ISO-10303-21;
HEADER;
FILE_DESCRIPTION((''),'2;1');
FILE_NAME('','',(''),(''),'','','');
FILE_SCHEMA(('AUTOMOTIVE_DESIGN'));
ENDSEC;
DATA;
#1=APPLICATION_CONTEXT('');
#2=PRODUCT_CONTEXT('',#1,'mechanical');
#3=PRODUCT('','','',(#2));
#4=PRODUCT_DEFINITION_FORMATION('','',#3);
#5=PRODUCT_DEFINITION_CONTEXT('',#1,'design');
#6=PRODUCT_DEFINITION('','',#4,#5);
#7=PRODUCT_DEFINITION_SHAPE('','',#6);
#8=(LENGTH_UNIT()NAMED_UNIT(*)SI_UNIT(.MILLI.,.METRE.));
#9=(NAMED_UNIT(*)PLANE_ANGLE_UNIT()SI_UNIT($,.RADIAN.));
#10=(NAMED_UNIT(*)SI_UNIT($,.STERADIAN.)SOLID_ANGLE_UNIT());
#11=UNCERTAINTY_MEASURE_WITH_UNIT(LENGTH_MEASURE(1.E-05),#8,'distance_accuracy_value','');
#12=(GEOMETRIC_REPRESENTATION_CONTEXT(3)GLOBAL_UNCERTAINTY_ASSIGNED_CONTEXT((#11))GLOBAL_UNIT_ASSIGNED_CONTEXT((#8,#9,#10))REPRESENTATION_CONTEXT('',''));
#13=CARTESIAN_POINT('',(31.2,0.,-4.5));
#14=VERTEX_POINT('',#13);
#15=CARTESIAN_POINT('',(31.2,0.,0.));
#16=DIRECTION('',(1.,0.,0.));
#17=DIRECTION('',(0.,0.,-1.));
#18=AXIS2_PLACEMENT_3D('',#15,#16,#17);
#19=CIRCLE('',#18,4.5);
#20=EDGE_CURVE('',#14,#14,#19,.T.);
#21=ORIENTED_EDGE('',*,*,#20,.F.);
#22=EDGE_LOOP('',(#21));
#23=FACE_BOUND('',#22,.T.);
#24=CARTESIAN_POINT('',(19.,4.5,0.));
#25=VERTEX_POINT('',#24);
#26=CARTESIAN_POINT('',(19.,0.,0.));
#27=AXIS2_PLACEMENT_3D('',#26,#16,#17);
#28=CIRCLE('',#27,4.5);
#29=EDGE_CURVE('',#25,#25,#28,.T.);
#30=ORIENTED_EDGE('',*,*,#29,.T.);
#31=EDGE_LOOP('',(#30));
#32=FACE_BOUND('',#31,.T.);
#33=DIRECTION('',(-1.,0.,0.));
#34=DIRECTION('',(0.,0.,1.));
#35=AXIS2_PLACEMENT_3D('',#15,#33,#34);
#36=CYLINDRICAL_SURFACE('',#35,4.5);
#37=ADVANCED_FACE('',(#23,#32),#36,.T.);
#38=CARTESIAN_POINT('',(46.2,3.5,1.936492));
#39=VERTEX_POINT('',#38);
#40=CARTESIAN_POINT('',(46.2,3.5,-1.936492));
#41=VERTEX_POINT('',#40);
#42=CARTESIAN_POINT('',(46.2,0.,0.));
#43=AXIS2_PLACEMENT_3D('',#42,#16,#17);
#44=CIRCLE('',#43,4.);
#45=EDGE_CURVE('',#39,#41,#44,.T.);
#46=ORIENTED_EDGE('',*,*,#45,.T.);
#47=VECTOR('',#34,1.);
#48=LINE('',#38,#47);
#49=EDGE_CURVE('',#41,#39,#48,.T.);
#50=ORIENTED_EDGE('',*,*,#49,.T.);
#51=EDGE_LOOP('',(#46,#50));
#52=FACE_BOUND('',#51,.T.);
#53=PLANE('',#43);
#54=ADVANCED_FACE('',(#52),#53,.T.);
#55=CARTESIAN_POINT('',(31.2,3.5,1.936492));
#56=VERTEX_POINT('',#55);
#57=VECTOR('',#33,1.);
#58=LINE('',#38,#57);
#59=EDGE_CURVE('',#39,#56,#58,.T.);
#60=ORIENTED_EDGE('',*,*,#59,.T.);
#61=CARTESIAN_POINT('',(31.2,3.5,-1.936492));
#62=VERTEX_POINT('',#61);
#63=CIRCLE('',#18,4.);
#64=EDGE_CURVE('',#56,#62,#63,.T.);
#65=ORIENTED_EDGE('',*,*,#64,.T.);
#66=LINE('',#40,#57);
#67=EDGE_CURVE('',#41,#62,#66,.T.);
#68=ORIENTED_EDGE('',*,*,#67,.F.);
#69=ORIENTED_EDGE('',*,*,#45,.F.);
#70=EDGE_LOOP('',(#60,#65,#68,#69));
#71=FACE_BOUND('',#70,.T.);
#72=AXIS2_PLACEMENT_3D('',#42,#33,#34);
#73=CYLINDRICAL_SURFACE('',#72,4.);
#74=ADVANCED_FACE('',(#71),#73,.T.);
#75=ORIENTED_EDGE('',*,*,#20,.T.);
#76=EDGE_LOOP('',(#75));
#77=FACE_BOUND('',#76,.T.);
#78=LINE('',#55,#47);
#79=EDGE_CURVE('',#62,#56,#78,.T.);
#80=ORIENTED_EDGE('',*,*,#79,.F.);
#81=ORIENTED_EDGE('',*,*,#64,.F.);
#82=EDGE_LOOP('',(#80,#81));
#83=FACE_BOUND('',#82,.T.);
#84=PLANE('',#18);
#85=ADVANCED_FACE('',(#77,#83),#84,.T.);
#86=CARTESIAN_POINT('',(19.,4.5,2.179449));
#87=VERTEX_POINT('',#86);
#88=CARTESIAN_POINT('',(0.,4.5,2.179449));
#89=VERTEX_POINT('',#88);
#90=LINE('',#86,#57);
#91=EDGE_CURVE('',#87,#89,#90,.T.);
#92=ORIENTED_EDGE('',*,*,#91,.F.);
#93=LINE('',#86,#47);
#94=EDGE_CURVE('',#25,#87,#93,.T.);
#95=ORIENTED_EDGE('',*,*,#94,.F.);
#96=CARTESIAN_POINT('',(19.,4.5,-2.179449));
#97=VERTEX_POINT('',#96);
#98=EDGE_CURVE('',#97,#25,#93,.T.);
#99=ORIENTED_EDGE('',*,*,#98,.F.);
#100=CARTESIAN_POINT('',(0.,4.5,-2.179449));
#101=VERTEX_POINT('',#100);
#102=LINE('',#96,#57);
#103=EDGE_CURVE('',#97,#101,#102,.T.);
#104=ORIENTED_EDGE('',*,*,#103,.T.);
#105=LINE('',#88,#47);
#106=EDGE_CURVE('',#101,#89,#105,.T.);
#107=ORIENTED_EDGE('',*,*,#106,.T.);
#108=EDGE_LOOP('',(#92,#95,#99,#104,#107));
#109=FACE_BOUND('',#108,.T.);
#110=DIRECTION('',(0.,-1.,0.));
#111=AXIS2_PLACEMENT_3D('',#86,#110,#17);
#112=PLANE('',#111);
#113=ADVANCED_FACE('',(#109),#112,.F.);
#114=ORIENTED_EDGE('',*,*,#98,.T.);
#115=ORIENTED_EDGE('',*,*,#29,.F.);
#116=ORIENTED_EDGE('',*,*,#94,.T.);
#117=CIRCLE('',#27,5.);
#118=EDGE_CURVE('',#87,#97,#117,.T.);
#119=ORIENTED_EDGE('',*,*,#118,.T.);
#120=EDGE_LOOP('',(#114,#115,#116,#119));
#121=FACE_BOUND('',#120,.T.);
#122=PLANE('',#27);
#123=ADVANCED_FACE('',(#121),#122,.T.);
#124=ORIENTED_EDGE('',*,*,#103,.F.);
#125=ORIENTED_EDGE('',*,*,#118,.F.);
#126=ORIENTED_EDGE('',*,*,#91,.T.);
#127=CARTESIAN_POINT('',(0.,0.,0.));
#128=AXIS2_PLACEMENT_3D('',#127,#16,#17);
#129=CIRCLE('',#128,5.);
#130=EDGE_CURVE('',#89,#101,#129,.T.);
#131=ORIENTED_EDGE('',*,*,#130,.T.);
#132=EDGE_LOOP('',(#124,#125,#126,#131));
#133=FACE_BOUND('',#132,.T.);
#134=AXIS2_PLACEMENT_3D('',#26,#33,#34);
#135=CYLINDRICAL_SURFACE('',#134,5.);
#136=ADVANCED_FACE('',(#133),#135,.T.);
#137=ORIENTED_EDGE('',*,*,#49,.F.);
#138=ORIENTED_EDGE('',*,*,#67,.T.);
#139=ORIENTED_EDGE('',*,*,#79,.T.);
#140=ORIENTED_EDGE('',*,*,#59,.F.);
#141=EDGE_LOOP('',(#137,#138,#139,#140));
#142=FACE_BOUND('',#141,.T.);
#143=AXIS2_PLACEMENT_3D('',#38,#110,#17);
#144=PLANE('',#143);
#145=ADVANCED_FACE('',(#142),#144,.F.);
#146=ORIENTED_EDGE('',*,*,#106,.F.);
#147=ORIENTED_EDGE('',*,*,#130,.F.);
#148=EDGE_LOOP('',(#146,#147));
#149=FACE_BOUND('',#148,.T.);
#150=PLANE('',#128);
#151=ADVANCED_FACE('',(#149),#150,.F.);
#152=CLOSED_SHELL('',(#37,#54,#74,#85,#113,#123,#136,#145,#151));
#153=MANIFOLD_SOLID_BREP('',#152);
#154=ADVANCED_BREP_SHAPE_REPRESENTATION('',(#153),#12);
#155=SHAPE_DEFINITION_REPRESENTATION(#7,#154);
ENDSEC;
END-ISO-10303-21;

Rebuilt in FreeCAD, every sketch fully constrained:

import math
import FreeCAD as App
import Part
import Sketcher
from FreeCAD import Vector

doc = App.newDocument("Part")
body = doc.addObject("PartDesign::Body", "Body")

# Sketch on YZ plane
sketch1 = body.newObject("Sketcher::SketchObject", "Sketch")
sketch1.AttachmentSupport = (doc.getObject("YZ_Plane"), [""])
sketch1.MapMode = "FlatFace"
sketch1.addGeometry(Part.LineSegment(Vector(4.5, -2.2, 0), Vector(4.5, 2.2, 0)), False)
sketch1.addGeometry(Part.ArcOfCircle(Part.Circle(Vector(0, 0, 0), Vector(0, 0, 1), 5), math.radians(26), math.radians(334)), False)
sketch1.addConstraint(Sketcher.Constraint("Coincident", 0, 1, 1, 2))
sketch1.addConstraint(Sketcher.Constraint("Coincident", 1, 1, 0, 2))
sketch1.addConstraint(Sketcher.Constraint("Vertical", 0))
sketch1.addConstraint(Sketcher.Constraint("Coincident", 1, 3, -1, 1))
sketch1.addConstraint(Sketcher.Constraint("Radius", 1, 5.0))
sketch1.addConstraint(Sketcher.Constraint("DistanceX", -1, 1, 0, 1, 4.5))
pad1 = body.newObject("PartDesign::Pad", "Pad")
pad1.Profile = sketch1
pad1.Length = 19

# Sketch on YZ plane
sketch2 = body.newObject("Sketcher::SketchObject", "Sketch001")
sketch2.AttachmentSupport = (doc.getObject("YZ_Plane"), [""])
sketch2.MapMode = "FlatFace"
sketch2.AttachmentOffset = App.Placement(Vector(0, 0, 19), App.Rotation())
sketch2.addGeometry(Part.Circle(Vector(0, 0, 0), Vector(0, 0, 1), 4.5), False)
sketch2.addConstraint(Sketcher.Constraint("Coincident", 0, 3, -1, 1))
sketch2.addConstraint(Sketcher.Constraint("Diameter", 0, 9.0))
pad2 = body.newObject("PartDesign::Pad", "Pad001")
pad2.Profile = sketch2
pad2.Length = 12.2

# Sketch on YZ plane
sketch3 = body.newObject("Sketcher::SketchObject", "Sketch002")
sketch3.AttachmentSupport = (doc.getObject("YZ_Plane"), [""])
sketch3.MapMode = "FlatFace"
sketch3.AttachmentOffset = App.Placement(Vector(0, 0, 31.2), App.Rotation())
sketch3.addGeometry(Part.LineSegment(Vector(3.5, -1.9, 0), Vector(3.5, 1.9, 0)), False)
sketch3.addGeometry(Part.ArcOfCircle(Part.Circle(Vector(0, 0, 0), Vector(0, 0, 1), 4), math.radians(29), math.radians(331)), False)
sketch3.addConstraint(Sketcher.Constraint("Coincident", 0, 1, 1, 2))
sketch3.addConstraint(Sketcher.Constraint("Coincident", 1, 1, 0, 2))
sketch3.addConstraint(Sketcher.Constraint("Vertical", 0))
sketch3.addConstraint(Sketcher.Constraint("Coincident", 1, 3, -1, 1))
sketch3.addConstraint(Sketcher.Constraint("Radius", 1, 4.0))
sketch3.addConstraint(Sketcher.Constraint("DistanceX", -1, 1, 0, 1, 3.5))
pad3 = body.newObject("PartDesign::Pad", "Pad002")
pad3.Profile = sketch3
pad3.Length = 15

doc.recompute()
